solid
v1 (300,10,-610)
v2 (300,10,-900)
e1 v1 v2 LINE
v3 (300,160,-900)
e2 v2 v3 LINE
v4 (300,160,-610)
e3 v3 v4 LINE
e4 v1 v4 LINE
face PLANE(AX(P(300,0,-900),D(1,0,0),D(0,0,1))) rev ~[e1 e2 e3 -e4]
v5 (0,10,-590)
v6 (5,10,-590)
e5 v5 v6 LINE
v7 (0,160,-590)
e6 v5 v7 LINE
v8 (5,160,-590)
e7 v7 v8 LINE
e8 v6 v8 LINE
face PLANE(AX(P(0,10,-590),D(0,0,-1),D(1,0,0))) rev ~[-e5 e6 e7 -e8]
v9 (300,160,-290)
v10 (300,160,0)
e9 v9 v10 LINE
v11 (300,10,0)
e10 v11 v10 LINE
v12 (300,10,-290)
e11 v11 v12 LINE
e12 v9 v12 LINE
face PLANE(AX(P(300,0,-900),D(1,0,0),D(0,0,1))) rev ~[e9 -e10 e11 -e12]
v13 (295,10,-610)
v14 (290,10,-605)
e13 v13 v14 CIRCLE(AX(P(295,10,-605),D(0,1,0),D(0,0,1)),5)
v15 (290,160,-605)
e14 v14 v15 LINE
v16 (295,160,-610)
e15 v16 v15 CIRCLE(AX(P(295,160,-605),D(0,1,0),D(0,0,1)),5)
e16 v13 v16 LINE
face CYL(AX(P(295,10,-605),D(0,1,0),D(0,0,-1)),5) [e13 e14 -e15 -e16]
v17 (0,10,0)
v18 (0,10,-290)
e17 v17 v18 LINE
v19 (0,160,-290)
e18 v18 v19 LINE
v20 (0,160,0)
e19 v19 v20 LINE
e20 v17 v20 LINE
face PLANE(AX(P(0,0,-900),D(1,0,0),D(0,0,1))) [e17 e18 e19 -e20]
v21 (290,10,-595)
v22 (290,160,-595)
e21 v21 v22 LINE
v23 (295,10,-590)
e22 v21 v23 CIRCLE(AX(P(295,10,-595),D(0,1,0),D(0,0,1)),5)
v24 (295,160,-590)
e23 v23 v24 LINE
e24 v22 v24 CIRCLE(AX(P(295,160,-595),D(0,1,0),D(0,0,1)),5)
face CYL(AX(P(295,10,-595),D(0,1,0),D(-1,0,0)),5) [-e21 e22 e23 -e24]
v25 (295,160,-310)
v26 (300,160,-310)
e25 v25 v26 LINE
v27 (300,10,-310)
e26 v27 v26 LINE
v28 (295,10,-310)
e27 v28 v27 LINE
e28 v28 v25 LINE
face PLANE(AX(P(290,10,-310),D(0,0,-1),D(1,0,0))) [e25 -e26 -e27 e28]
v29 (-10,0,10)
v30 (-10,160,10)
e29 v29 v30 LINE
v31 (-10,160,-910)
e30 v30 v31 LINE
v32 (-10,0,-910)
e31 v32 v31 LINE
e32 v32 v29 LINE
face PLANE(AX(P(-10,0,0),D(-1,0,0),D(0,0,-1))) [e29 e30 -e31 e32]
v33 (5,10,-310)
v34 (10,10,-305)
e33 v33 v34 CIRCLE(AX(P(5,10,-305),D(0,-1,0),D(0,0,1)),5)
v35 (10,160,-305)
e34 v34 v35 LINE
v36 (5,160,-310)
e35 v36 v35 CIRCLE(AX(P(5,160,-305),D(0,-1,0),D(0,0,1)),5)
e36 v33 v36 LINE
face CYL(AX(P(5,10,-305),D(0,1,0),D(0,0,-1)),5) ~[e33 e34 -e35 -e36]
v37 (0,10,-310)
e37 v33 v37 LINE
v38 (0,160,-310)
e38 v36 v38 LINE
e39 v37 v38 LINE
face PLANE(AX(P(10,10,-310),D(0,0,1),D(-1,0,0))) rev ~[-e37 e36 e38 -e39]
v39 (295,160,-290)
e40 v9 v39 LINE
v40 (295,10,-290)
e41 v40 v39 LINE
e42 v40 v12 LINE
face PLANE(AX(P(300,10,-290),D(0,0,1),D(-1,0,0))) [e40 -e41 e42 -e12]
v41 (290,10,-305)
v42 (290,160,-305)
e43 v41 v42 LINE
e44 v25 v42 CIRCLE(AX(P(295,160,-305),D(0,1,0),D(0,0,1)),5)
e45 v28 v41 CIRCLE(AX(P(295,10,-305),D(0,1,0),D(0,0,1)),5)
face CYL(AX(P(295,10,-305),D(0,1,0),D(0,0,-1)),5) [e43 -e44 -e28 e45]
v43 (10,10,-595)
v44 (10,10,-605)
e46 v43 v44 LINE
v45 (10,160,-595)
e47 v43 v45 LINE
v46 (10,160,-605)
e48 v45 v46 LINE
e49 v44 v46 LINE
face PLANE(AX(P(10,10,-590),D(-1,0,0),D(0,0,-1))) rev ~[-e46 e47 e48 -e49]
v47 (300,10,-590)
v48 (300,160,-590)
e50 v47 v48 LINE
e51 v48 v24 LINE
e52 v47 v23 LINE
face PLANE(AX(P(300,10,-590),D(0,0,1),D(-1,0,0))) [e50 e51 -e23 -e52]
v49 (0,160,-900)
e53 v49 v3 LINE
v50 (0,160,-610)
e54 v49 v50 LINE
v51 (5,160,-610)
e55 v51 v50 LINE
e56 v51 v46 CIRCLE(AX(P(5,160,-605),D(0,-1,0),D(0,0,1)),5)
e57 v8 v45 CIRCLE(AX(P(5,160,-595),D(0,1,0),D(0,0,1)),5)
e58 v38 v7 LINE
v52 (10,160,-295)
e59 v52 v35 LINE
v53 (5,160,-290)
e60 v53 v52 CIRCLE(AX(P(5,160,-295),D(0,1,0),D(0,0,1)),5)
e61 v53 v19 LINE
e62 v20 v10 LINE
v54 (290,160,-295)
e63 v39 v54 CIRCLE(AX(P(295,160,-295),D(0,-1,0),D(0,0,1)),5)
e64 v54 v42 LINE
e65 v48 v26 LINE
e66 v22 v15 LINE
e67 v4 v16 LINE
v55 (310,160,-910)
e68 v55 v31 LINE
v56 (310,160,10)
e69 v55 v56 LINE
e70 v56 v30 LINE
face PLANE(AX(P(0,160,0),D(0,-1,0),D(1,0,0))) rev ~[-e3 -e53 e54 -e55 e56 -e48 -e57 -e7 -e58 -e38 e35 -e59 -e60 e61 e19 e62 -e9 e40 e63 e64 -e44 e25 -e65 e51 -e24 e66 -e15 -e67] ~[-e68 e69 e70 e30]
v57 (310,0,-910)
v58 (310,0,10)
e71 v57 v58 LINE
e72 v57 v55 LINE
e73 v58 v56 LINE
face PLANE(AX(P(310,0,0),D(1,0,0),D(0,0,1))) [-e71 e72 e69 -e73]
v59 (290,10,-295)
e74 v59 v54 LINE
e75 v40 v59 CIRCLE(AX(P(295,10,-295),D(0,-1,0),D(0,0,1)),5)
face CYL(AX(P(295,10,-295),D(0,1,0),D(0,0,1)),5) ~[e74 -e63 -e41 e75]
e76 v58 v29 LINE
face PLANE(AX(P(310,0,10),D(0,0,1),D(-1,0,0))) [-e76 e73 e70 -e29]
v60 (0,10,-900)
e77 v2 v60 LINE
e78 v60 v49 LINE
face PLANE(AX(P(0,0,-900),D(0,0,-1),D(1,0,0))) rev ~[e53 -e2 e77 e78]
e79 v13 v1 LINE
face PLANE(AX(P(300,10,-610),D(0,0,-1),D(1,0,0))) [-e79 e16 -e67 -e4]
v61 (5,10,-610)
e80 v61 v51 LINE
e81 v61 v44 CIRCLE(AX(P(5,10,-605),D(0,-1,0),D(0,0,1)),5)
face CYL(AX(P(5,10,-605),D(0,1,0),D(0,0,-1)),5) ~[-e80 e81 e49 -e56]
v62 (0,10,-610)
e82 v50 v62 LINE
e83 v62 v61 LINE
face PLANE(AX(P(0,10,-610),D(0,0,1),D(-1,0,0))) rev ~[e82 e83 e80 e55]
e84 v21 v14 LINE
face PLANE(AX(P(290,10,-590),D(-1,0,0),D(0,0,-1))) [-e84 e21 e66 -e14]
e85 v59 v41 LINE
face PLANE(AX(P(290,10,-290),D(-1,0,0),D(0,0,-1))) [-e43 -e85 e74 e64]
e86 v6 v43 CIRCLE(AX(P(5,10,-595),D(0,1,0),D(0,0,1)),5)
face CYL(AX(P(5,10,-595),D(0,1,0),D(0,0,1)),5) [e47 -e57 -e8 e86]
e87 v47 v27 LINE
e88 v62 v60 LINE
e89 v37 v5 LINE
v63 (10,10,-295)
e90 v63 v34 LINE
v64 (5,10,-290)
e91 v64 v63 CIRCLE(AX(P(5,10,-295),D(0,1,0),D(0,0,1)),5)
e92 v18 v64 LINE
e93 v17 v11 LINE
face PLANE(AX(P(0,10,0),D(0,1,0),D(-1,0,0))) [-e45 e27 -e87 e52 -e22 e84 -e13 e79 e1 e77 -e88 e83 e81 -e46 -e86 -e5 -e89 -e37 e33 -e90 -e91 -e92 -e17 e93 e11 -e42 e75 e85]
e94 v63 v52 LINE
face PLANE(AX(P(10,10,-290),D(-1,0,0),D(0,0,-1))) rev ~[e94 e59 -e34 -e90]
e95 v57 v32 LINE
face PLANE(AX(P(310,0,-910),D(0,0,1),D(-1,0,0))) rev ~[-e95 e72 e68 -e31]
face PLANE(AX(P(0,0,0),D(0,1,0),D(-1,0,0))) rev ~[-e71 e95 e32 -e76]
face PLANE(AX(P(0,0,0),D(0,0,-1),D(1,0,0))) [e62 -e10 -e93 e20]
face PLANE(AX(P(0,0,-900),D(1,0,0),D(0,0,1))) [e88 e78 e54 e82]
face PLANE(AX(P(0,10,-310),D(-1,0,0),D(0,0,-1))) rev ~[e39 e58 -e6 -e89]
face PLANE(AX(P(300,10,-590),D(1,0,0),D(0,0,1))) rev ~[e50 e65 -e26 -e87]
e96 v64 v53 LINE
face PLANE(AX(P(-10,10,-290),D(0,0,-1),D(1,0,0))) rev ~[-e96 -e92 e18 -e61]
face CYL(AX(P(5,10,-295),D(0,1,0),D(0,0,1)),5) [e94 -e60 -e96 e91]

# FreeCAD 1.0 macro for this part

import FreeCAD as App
import Part
import Sketcher
Q = App.Units.Quantity


def edges_at(feature, points):
    """Names of the edges that pass closest to the given points."""
    edges = feature.Shape.Edges
    near = lambda p: min(range(len(edges)), key=lambda i: edges[i].distToShape(Part.Vertex(*p))[0])
    return sorted({f"Edge{near(p) + 1}" for p in points})


def add_polygon(sketch, points):
    """Adds a closed chain of lines whose ends are joined by coincident constraints."""
    first, n = sketch.GeometryCount, len(points)
    for a, b in zip(points, points[1:] + points[:1]):
        sketch.addGeometry(Part.LineSegment(App.Vector(*a, 0), App.Vector(*b, 0)), False)
    for i in range(n):
        sketch.addConstraint(Sketcher.Constraint("Coincident", first + i, 2, first + (i + 1) % n, 1))

doc = App.newDocument("Part")
params = doc.addObject("Spreadsheet::Sheet", "Params")
for row, (alias, value) in enumerate([
    ("sketch1_width", "300 mm"),
    ("sketch1_height", "900 mm"),
    ("pad1_length", "10 mm"),
    ("sketch2_width", "320 mm"),
    ("sketch2_height", "920 mm"),
    ("pad2_length", "160 mm"),
    ("sketch3_width", "20 mm"),
    ("pad3_length", "150 mm"),
    ("fillet_radius", "5 mm"),
], start=1):
    params.set(f"A{row}", alias)
    params.set(f"B{row}", "=" + value)
    params.setAlias(f"B{row}", alias)

body = doc.addObject("PartDesign::Body", "Body")

# Sketch on XZ plane
sketch1 = body.newObject("Sketcher::SketchObject", "Sketch")
sketch1.AttachmentSupport = (doc.getObject("XZ_Plane"), [""])
sketch1.MapMode = "FlatFace"
add_polygon(sketch1, [(0, 0), (300, 0), (300, -900), (0, -900)])  # lines 0-3
sketch1.addConstraint([
    Sketcher.Constraint("Horizontal", 0),
    Sketcher.Constraint("Vertical", 1),
    Sketcher.Constraint("Horizontal", 2),
    Sketcher.Constraint("Vertical", 3),
    Sketcher.Constraint("Coincident", 3, 2, -1, 1),
    Sketcher.Constraint("DistanceX", 0, 1, 0, 2, Q("300 mm")),
    Sketcher.Constraint("DistanceY", 1, 2, 1, 1, Q("900 mm")),
])
sketch1.setExpression("Constraints[9]", "Params.sketch1_width")
sketch1.setExpression("Constraints[10]", "Params.sketch1_height")
pad1 = body.newObject("PartDesign::Pad", "Pad")
pad1.Profile = sketch1
pad1.setExpression("Length", "Params.pad1_length")
pad1.Reversed = True

# Sketch on XZ plane
sketch2 = body.newObject("Sketcher::SketchObject", "Sketch001")
sketch2.AttachmentSupport = (doc.getObject("XZ_Plane"), [""])
sketch2.MapMode = "FlatFace"
add_polygon(sketch2, [(-10, -910), (310, -910), (310, 10), (-10, 10)])  # lines 0-3
add_polygon(sketch2, [(0, -900), (0, 0), (300, 0), (300, -900)])  # lines 4-7
sketch2.addConstraint([
    Sketcher.Constraint("Horizontal", 0),
    Sketcher.Constraint("Vertical", 1),
    Sketcher.Constraint("Horizontal", 2),
    Sketcher.Constraint("Vertical", 3),
    Sketcher.Constraint("Vertical", 4),
    Sketcher.Constraint("Horizontal", 5),
    Sketcher.Constraint("Vertical", 6),
    Sketcher.Constraint("Horizontal", 7),
    Sketcher.Constraint("Coincident", 4, 2, -1, 1),
    Sketcher.Constraint("DistanceY", -1, 1, 1, 2, Q("10 mm")),
    Sketcher.Constraint("DistanceX", 2, 2, -1, 1, Q("10 mm")),
    Sketcher.Constraint("DistanceX", 5, 2, 1, 2, Q("10 mm")),
    Sketcher.Constraint("DistanceY", 0, 2, 6, 2, Q("10 mm")),
    Sketcher.Constraint("DistanceX", 0, 1, 0, 2, Q("320 mm")),
    Sketcher.Constraint("DistanceY", 1, 1, 1, 2, Q("920 mm")),
])
sketch2.setExpression("Constraints[21]", "Params.sketch2_width")
sketch2.setExpression("Constraints[22]", "Params.sketch2_height")
pad2 = body.newObject("PartDesign::Pad", "Pad001")
pad2.Profile = sketch2
pad2.setExpression("Length", "Params.pad2_length")
pad2.Reversed = True

# Sketch on XZ plane
sketch3 = body.newObject("Sketcher::SketchObject", "Sketch002")
sketch3.AttachmentSupport = (doc.getObject("XZ_Plane"), [""])
sketch3.MapMode = "FlatFace"
sketch3.AttachmentOffset = App.Placement(App.Vector(0, 0, -10), App.Rotation())
add_polygon(sketch3, [(-10, -290), (10, -290), (10, -310), (0, -310), (0, -590), (10, -590), (10, -610), (-10, -610)])  # lines 0-7
add_polygon(sketch3, [(290, -290), (310, -290), (310, -610), (290, -610), (290, -590), (300, -590), (300, -310), (290, -310)])  # lines 8-15
sketch3.addConstraint([
    Sketcher.Constraint("Horizontal", 0),
    Sketcher.Constraint("Vertical", 1),
    Sketcher.Constraint("Horizontal", 2),
    Sketcher.Constraint("Vertical", 3),
    Sketcher.Constraint("Horizontal", 4),
    Sketcher.Constraint("Vertical", 5),
    Sketcher.Constraint("Horizontal", 6),
    Sketcher.Constraint("Vertical", 7),
    Sketcher.Constraint("Horizontal", 8),
    Sketcher.Constraint("Vertical", 9),
    Sketcher.Constraint("Horizontal", 10),
    Sketcher.Constraint("Vertical", 11),
    Sketcher.Constraint("Horizontal", 12),
    Sketcher.Constraint("Vertical", 13),
    Sketcher.Constraint("Horizontal", 14),
    Sketcher.Constraint("Vertical", 15),
    Sketcher.Constraint("PointOnObject", 2, 2, -2),
    Sketcher.Constraint("Horizontal", 7, 2, 8, 2),
    Sketcher.Constraint("Horizontal", 6, 2, 9, 2),
    Sketcher.Constraint("Horizontal", 4, 2, 11, 2),
    Sketcher.Constraint("Horizontal", 2, 2, 13, 2),
    Sketcher.Constraint("Vertical", 1, 2, 4, 2),
    Sketcher.Constraint("Vertical", 11, 2, 14, 2),
    Sketcher.Constraint("Equal", 6, 8),
    Sketcher.Constraint("Equal", 4, 12),
    Sketcher.Constraint("Equal", 10, 1),
    Sketcher.Constraint("Equal", 1, 5),
    Sketcher.Constraint("DistanceX", 0, 1, 0, 2, Q("20 mm")),
    Sketcher.Constraint("DistanceX", -1, 1, 12, 2, Q("300 mm")),
    Sketcher.Constraint("DistanceY", 3, 2, 0, 2, Q("300 mm")),
    Sketcher.Constraint("DistanceX", 0, 2, 8, 2, Q("300 mm")),
    Sketcher.Constraint("DistanceY", 0, 2, -1, 1, Q("290 mm")),
])
sketch3.setExpression("Constraints[43]", "Params.sketch3_width")
pad3 = body.newObject("PartDesign::Pad", "Pad002")
pad3.Profile = sketch3
pad3.setExpression("Length", "Params.pad3_length")
pad3.Reversed = True
doc.recompute()

fillet = body.newObject("PartDesign::Fillet", "Fillet")
fillet.Base = (pad3, edges_at(pad3, [
    (290, 85, -610),
    (290, 85, -590),
    (290, 85, -310),
    (290, 85, -290),
    (10, 85, -310),
    (10, 85, -290),
    (10, 85, -610),
    (10, 85, -590),
]))
fillet.setExpression("Radius", "Params.fillet_radius")

doc.recompute()
